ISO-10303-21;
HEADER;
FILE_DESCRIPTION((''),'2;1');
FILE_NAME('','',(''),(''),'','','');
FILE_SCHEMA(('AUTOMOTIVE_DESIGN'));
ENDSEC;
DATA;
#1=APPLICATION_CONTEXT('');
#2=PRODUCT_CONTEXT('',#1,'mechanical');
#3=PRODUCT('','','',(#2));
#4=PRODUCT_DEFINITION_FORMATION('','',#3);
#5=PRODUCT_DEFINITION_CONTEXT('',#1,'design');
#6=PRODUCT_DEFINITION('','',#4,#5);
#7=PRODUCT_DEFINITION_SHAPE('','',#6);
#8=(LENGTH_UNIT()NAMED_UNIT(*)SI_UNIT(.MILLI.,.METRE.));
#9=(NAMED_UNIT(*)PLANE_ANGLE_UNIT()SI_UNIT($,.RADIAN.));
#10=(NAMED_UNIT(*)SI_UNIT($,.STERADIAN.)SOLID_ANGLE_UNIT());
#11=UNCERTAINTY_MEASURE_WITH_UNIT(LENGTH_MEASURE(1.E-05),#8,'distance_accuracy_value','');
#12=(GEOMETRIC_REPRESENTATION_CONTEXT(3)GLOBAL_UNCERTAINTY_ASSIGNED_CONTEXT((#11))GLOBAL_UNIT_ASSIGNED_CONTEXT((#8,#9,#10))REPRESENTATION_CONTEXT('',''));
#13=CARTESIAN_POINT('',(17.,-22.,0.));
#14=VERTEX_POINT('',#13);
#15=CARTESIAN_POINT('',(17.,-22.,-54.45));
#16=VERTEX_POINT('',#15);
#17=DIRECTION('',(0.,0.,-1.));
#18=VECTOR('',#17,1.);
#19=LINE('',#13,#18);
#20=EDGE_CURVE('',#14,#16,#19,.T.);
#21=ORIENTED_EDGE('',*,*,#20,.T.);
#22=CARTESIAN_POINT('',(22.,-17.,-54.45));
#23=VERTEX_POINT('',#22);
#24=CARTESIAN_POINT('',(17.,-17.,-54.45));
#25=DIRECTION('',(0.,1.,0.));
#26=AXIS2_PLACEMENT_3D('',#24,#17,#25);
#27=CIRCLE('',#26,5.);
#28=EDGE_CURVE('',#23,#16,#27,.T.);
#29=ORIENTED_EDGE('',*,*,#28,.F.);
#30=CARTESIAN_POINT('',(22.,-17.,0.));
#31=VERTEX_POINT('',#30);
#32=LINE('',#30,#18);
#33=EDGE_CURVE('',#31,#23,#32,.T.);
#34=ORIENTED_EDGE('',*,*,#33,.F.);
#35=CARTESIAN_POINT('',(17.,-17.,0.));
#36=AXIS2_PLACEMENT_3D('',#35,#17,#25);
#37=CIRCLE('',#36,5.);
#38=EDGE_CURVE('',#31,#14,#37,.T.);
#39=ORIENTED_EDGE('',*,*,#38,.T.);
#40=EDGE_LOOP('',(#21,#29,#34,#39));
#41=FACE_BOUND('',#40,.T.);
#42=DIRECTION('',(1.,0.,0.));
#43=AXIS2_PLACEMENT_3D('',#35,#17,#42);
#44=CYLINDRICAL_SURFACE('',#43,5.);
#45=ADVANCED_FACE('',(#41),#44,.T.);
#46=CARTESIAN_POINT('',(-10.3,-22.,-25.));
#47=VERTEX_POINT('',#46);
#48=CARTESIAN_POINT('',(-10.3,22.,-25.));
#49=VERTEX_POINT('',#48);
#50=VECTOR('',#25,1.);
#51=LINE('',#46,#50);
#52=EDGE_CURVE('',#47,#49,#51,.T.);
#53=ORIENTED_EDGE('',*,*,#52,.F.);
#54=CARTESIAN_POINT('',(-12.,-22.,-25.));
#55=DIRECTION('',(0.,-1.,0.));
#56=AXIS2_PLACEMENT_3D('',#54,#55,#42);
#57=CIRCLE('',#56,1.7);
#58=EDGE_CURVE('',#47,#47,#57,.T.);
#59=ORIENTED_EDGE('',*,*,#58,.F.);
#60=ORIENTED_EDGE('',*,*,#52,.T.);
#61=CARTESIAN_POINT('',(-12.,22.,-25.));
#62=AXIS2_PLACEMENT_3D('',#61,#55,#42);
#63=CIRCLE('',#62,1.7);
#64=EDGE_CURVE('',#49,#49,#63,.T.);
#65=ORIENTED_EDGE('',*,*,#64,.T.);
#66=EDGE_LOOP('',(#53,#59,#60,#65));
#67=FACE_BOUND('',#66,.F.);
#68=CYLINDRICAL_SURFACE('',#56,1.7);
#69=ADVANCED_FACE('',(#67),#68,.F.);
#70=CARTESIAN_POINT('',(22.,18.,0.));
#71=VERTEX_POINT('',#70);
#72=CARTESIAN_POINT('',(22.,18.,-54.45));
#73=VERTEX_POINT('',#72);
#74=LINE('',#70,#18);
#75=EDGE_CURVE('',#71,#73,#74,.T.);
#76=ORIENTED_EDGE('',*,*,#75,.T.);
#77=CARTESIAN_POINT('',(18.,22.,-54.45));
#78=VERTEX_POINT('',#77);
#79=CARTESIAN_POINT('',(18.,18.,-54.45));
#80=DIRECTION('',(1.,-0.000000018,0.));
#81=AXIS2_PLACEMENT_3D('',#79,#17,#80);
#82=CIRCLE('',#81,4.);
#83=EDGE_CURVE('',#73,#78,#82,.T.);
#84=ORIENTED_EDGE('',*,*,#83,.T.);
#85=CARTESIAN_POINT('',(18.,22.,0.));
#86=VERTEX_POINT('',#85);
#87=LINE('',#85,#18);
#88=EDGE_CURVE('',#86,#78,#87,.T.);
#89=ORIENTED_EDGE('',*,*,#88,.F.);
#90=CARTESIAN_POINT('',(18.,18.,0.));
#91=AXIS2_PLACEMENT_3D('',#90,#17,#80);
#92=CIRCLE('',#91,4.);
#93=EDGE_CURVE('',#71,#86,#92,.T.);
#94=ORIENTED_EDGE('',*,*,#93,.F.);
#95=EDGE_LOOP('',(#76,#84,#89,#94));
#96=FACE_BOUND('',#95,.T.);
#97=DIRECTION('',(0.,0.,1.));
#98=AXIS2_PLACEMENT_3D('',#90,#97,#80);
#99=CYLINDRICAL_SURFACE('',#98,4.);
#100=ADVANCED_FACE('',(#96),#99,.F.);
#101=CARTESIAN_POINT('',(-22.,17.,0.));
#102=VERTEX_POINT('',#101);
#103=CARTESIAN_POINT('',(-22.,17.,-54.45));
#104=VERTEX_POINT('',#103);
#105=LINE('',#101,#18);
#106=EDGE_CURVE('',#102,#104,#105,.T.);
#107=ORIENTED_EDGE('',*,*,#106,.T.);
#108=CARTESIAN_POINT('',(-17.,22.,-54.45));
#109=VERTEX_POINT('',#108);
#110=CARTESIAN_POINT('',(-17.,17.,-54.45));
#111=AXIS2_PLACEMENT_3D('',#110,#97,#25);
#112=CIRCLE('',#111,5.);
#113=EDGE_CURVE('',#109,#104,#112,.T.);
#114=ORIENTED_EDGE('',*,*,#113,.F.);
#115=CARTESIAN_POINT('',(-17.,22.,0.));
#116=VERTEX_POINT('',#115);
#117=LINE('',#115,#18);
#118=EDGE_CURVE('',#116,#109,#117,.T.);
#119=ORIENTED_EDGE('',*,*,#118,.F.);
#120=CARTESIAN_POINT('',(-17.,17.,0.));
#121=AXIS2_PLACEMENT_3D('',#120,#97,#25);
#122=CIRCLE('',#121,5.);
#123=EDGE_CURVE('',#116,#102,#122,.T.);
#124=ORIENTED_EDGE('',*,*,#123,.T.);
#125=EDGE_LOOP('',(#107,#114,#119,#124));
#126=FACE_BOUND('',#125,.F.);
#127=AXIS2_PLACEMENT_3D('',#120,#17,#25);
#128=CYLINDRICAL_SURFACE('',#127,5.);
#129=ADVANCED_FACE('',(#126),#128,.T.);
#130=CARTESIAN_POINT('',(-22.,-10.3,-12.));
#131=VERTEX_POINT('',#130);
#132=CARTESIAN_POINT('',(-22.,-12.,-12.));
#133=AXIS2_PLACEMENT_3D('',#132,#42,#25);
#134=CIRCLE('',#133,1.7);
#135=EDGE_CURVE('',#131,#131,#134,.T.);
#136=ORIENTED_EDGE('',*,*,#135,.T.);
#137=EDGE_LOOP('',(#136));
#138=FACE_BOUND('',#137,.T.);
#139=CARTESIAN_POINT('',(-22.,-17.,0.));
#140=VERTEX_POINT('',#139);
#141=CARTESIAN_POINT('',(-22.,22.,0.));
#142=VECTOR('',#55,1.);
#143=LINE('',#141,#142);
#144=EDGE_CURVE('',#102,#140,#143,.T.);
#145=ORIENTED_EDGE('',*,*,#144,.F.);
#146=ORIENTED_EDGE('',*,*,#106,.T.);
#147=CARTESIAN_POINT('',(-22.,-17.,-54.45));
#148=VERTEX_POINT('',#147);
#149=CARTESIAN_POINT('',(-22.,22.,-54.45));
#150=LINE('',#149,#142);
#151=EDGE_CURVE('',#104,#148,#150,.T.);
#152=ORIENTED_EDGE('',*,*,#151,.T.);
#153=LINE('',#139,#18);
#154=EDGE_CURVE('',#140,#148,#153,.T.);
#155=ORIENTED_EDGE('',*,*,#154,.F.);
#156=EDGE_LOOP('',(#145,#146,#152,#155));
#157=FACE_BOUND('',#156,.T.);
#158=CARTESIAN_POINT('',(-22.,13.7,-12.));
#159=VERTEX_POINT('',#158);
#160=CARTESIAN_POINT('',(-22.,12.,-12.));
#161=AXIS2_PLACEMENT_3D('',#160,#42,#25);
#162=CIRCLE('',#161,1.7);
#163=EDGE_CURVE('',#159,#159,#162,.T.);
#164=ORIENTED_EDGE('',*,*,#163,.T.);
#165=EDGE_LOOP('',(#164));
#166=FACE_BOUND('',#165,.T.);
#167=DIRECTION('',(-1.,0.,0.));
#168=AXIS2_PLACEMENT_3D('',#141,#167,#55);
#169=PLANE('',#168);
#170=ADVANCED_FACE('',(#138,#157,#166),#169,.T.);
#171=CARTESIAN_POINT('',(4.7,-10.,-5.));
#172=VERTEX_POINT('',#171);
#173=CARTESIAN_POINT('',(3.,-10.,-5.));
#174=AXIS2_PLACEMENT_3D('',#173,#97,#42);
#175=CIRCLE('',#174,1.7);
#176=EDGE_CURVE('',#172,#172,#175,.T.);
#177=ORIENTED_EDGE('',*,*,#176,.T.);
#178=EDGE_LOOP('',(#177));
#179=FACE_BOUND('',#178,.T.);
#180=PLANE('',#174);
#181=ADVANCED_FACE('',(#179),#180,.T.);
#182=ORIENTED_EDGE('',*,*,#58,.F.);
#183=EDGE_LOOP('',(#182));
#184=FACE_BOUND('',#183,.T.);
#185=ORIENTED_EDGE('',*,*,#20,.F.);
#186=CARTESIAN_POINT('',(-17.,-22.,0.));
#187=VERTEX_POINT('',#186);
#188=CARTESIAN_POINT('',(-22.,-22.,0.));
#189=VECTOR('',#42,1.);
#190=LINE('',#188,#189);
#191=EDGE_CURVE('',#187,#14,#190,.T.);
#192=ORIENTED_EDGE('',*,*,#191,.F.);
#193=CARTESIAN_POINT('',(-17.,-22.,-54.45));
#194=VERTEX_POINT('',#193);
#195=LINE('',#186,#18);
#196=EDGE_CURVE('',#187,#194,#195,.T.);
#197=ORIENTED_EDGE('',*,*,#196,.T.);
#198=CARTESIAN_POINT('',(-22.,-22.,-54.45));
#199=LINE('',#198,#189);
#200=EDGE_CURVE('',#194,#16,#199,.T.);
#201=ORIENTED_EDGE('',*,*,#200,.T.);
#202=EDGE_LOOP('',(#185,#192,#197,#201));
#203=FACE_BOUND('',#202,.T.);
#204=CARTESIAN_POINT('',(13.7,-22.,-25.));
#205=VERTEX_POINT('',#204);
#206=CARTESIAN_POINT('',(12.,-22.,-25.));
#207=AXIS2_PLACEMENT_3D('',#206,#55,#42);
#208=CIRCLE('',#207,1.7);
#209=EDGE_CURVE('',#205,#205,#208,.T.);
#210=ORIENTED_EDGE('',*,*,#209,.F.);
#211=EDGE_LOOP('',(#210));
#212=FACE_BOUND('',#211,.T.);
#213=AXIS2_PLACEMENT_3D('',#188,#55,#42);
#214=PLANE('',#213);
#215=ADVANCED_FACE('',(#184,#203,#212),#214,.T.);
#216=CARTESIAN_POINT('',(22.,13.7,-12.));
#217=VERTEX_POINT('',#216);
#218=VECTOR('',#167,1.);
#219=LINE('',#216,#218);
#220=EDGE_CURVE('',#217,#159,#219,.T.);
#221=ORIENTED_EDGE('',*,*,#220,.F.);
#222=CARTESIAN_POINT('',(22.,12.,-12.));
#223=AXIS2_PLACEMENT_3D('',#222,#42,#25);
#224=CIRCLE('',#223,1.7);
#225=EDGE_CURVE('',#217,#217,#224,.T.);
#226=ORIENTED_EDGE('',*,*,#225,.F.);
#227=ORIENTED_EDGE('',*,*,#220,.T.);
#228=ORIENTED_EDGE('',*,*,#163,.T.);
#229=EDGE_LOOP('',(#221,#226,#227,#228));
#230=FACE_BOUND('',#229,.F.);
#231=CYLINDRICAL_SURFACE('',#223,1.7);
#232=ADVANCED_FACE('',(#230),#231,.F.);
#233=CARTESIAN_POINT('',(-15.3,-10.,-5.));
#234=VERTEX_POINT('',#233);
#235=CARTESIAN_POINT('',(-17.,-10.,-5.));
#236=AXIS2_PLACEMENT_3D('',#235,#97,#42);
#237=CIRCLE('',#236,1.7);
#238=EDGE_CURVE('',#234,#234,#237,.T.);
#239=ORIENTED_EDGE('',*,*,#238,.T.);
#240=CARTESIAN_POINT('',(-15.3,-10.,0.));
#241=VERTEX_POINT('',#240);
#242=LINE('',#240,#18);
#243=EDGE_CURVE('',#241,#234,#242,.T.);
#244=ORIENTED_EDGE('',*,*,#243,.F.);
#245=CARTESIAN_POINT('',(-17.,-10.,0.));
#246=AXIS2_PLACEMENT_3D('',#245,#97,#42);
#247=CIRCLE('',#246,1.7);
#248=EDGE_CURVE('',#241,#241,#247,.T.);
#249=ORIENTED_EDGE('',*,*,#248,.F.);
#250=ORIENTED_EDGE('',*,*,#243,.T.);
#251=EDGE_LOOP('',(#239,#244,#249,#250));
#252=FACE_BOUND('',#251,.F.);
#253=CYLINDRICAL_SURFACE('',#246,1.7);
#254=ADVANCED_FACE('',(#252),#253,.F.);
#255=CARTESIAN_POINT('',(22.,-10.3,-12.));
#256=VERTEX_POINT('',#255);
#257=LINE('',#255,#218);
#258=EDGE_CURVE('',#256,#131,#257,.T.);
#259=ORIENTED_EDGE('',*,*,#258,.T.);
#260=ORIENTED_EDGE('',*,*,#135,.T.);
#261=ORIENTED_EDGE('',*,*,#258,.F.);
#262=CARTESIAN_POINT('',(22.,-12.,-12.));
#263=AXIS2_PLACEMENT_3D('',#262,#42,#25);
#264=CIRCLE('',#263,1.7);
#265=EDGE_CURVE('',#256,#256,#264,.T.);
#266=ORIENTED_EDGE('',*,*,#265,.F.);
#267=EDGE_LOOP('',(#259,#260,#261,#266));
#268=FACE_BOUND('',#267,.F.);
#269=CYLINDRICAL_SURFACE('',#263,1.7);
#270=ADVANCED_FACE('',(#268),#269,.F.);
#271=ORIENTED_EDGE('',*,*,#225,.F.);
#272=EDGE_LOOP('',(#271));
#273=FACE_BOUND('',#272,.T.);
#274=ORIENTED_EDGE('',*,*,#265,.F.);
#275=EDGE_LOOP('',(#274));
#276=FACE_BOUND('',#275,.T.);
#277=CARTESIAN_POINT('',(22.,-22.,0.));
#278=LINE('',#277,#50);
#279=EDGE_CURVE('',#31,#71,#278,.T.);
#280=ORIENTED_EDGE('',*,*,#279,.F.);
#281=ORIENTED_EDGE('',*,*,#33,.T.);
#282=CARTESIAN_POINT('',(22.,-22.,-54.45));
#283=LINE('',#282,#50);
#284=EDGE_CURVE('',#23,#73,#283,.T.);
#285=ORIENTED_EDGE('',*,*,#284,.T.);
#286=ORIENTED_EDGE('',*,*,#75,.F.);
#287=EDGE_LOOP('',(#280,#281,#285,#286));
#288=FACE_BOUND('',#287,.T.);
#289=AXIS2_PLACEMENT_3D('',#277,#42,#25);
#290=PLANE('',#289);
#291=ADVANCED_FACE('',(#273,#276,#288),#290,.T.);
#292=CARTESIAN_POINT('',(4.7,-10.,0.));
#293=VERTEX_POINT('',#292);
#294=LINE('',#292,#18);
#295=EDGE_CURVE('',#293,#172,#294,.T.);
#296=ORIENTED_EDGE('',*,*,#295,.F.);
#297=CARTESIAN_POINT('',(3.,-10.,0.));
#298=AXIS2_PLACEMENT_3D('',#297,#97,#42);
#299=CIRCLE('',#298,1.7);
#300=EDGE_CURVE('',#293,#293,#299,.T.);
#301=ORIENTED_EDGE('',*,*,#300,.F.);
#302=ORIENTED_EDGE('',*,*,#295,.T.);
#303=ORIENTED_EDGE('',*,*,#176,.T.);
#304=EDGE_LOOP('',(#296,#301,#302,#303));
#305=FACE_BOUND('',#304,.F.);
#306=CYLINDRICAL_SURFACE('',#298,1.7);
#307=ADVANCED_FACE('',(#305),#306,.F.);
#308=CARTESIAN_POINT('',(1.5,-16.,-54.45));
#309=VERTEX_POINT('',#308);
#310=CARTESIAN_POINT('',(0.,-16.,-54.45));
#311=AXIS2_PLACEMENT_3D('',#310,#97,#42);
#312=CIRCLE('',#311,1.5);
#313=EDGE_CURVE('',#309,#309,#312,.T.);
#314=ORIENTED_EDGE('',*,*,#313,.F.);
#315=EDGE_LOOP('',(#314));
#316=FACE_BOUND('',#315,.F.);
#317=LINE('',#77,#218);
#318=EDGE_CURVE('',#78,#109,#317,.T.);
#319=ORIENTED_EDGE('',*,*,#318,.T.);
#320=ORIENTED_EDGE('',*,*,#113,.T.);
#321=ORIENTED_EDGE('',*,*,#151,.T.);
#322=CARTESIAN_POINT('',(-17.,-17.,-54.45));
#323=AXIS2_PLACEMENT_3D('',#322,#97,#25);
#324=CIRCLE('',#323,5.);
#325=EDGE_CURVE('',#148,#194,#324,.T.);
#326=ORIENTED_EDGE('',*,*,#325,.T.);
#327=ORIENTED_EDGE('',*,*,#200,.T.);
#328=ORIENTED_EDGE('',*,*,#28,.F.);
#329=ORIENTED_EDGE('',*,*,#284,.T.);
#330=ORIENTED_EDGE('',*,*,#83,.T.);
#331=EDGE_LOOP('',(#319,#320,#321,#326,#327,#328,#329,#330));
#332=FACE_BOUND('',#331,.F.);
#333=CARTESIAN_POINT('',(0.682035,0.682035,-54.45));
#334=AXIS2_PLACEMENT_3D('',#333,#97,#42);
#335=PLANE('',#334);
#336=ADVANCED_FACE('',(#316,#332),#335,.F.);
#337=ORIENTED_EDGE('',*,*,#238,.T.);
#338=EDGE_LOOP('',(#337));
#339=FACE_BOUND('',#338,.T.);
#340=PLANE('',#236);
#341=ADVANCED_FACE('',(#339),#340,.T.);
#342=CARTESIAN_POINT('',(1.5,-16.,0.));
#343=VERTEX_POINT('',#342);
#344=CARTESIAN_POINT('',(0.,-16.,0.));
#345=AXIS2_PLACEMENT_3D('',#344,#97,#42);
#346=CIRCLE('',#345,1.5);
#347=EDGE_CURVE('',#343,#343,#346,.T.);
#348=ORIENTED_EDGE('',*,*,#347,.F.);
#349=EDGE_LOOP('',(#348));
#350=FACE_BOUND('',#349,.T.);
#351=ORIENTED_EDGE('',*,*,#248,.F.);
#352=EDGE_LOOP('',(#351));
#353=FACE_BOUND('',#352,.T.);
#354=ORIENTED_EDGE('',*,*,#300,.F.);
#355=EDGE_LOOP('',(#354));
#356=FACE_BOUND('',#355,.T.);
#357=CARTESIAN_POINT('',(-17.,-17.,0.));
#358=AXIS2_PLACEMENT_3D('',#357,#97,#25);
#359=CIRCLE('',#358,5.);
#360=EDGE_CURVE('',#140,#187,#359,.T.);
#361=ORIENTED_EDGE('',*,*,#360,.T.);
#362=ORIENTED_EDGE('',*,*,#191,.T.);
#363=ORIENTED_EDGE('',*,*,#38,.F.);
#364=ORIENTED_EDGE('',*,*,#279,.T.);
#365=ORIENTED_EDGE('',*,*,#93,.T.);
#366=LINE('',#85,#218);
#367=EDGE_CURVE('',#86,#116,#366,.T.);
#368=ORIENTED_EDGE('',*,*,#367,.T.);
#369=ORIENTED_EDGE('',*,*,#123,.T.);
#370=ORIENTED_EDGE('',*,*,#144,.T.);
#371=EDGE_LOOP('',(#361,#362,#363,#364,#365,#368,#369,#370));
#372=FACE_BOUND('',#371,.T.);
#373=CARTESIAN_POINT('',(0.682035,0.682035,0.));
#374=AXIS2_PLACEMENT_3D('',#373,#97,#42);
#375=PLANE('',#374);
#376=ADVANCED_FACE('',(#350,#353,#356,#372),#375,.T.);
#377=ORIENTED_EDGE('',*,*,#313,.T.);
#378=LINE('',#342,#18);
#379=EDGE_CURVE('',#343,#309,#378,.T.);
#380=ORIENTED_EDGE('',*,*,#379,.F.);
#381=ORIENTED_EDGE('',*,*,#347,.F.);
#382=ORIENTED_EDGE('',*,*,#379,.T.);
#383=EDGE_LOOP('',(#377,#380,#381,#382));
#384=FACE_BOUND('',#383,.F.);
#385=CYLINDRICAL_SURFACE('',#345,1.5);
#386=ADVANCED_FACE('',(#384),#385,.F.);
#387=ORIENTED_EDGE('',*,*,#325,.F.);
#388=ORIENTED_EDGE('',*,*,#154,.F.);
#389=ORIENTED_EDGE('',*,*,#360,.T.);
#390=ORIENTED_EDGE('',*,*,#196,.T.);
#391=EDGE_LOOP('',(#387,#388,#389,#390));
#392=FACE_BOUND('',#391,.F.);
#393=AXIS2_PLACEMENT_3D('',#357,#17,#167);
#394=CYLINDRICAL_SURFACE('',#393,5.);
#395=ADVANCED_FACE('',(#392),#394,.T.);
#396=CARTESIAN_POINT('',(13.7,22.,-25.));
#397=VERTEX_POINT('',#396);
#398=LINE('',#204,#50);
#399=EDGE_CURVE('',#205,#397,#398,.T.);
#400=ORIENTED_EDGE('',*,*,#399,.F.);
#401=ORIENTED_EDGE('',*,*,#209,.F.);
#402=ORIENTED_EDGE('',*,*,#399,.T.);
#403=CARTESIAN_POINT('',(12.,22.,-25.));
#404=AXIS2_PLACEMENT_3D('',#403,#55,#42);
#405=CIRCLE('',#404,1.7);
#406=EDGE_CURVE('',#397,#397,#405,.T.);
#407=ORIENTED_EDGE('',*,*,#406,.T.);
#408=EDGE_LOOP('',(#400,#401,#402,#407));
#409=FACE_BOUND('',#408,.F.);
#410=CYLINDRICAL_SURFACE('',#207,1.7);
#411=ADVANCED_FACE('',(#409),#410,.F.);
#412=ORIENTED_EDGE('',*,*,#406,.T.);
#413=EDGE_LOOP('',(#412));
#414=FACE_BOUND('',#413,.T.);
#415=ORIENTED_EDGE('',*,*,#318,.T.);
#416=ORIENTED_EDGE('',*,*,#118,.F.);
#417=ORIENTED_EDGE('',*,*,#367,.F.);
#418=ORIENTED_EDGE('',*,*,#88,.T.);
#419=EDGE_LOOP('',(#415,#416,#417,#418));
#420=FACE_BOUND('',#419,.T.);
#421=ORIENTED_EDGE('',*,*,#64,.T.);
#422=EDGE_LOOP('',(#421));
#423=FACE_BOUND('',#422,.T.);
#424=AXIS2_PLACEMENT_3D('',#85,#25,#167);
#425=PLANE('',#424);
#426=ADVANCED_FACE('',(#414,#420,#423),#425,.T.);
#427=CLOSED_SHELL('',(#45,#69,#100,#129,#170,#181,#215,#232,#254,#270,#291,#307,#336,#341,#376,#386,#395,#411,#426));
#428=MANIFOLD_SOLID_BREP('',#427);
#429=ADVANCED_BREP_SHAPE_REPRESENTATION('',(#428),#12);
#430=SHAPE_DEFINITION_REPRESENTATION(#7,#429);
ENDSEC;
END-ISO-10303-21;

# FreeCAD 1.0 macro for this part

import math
import FreeCAD as App
import Part
import Sketcher
from FreeCAD import Vector
Q = App.Units.Quantity


def edges_at(feature, points):
    """Names of the edges that pass closest to the given points."""
    edges = feature.Shape.Edges
    near = lambda p: min(range(len(edges)), key=lambda i: edges[i].distToShape(Part.Vertex(*p))[0])
    return sorted({f"Edge{near(p) + 1}" for p in points})

doc = App.newDocument("Part")
body = doc.addObject("PartDesign::Body", "Body")

sketch1 = body.newObject("Sketcher::SketchObject", "Sketch")
sketch1.AttachmentSupport = (doc.getObject("XY_Plane"), [""])
sketch1.MapMode = "FlatFace"
sketch1.addGeometry([
    Part.LineSegment(Vector(18, 22, 0), Vector(-22, 22, 0)),
    Part.LineSegment(Vector(-22, 22, 0), Vector(-22, -22, 0)),
    Part.LineSegment(Vector(-22, -22, 0), Vector(22, -22, 0)),
    Part.LineSegment(Vector(22, -22, 0), Vector(22, 18, 0)),
    Part.ArcOfCircle(Part.Circle(Vector(18, 18, 0), Vector(0, 0, 1), 4), math.radians(90), math.radians(360)),
], False)
sketch1.addConstraint([
    Sketcher.Constraint("Coincident", 0, 2, 1, 1),
    Sketcher.Constraint("Coincident", 1, 2, 2, 1),
    Sketcher.Constraint("Coincident", 2, 2, 3, 1),
    Sketcher.Constraint("Tangent", 3, 2, 4, 2),
    Sketcher.Constraint("Tangent", 4, 1, 0, 1),
    Sketcher.Constraint("Horizontal", 0),
    Sketcher.Constraint("Vertical", 1),
    Sketcher.Constraint("Horizontal", 2),
    Sketcher.Constraint("Vertical", 3),
    Sketcher.Constraint("Symmetric", 0, 2, 2, 2, -1, 1),
    Sketcher.Constraint("Equal", 2, 1),
    Sketcher.Constraint("Radius", 4, Q("4 mm")),
    Sketcher.Constraint("DistanceX", 0, 2, 0, 1, Q("40 mm")),
])
pad1 = body.newObject("PartDesign::Pad", "Pad")
pad1.Profile = sketch1
pad1.Length = 54.45
pad1.Reversed = True

sketch2 = body.newObject("Sketcher::SketchObject", "Sketch001")
sketch2.AttachmentSupport = (doc.getObject("XZ_Plane"), [""])
sketch2.MapMode = "FlatFace"
sketch2.AttachmentOffset = App.Placement(Vector(0, 0, 22), App.Rotation())
sketch2.addGeometry([
    Part.Circle(Vector(-12, -25, 0), Vector(0, 0, 1), 1.7),
    Part.Circle(Vector(12, -25, 0), Vector(0, 0, 1), 1.7),
], False)
sketch2.addConstraint([
    Sketcher.Constraint("Equal", 0, 1),
    Sketcher.Constraint("Symmetric", 0, 3, 1, 3, -2),
    Sketcher.Constraint("Diameter", 0, Q("3.4 mm")),
    Sketcher.Constraint("DistanceX", 0, 3, -1, 1, Q("12 mm")),
    Sketcher.Constraint("DistanceY", 0, 3, -1, 1, Q("25 mm")),
])
pocket1 = body.newObject("PartDesign::Pocket", "Pocket")
pocket1.Profile = sketch2
pocket1.Length = 44

sketch3 = body.newObject("Sketcher::SketchObject", "Sketch002")
sketch3.AttachmentSupport = (doc.getObject("YZ_Plane"), [""])
sketch3.MapMode = "FlatFace"
sketch3.AttachmentOffset = App.Placement(Vector(0, 0, 22), App.Rotation())
sketch3.addGeometry([
    Part.Circle(Vector(-12, -12, 0), Vector(0, 0, 1), 1.7),
    Part.Circle(Vector(12, -12, 0), Vector(0, 0, 1), 1.7),
], False)
sketch3.addConstraint([
    Sketcher.Constraint("Equal", 0, 1),
    Sketcher.Constraint("Symmetric", 0, 3, 1, 3, -2),
    Sketcher.Constraint("Diameter", 0, Q("3.4 mm")),
    Sketcher.Constraint("DistanceX", 0, 3, -1, 1, Q("12 mm")),
    Sketcher.Constraint("DistanceY", 0, 3, -1, 1, Q("12 mm")),
])
pocket2 = body.newObject("PartDesign::Pocket", "Pocket001")
pocket2.Profile = sketch3
pocket2.Length = 44
doc.recompute()

fillet = body.newObject("PartDesign::Fillet", "Fillet")
fillet.Base = (pocket2, edges_at(pocket2, [(22, -22, -27.225), (-22, -22, -27.225), (-22, 22, -27.225)]))
fillet.Radius = 5

sketch4 = body.newObject("Sketcher::SketchObject", "Sketch003")
sketch4.AttachmentSupport = (doc.getObject("XY_Plane"), [""])
sketch4.MapMode = "FlatFace"
sketch4.addGeometry(Part.Circle(Vector(0, -16, 0), Vector(0, 0, 1), 1.5), False)
sketch4.addConstraint([
    Sketcher.Constraint("PointOnObject", 0, 3, -2),
    Sketcher.Constraint("Diameter", 0, Q("3 mm")),
    Sketcher.Constraint("DistanceY", 0, 3, -1, 1, Q("16 mm")),
])
pocket3 = body.newObject("PartDesign::Pocket", "Pocket002")
pocket3.Profile = sketch4
pocket3.Length = 55

sketch5 = body.newObject("Sketcher::SketchObject", "Sketch004")
sketch5.AttachmentSupport = (doc.getObject("XY_Plane"), [""])
sketch5.MapMode = "FlatFace"
sketch5.addGeometry([
    Part.Circle(Vector(-17, -10, 0), Vector(0, 0, 1), 1.7),
    Part.Circle(Vector(3, -10, 0), Vector(0, 0, 1), 1.7),
], False)
sketch5.addConstraint([
    Sketcher.Constraint("Equal", 0, 1),
    Sketcher.Constraint("Horizontal", 0, 3, 1, 3),
    Sketcher.Constraint("Diameter", 0, Q("3.4 mm")),
    Sketcher.Constraint("DistanceX", 0, 3, -1, 1, Q("17 mm")),
    Sketcher.Constraint("DistanceY", 0, 3, -1, 1, Q("10 mm")),
    Sketcher.Constraint("DistanceX", -1, 1, 1, 3, Q("3 mm")),
])
pocket4 = body.newObject("PartDesign::Pocket", "Pocket003")
pocket4.Profile = sketch5
pocket4.Length = 5

doc.recompute()
